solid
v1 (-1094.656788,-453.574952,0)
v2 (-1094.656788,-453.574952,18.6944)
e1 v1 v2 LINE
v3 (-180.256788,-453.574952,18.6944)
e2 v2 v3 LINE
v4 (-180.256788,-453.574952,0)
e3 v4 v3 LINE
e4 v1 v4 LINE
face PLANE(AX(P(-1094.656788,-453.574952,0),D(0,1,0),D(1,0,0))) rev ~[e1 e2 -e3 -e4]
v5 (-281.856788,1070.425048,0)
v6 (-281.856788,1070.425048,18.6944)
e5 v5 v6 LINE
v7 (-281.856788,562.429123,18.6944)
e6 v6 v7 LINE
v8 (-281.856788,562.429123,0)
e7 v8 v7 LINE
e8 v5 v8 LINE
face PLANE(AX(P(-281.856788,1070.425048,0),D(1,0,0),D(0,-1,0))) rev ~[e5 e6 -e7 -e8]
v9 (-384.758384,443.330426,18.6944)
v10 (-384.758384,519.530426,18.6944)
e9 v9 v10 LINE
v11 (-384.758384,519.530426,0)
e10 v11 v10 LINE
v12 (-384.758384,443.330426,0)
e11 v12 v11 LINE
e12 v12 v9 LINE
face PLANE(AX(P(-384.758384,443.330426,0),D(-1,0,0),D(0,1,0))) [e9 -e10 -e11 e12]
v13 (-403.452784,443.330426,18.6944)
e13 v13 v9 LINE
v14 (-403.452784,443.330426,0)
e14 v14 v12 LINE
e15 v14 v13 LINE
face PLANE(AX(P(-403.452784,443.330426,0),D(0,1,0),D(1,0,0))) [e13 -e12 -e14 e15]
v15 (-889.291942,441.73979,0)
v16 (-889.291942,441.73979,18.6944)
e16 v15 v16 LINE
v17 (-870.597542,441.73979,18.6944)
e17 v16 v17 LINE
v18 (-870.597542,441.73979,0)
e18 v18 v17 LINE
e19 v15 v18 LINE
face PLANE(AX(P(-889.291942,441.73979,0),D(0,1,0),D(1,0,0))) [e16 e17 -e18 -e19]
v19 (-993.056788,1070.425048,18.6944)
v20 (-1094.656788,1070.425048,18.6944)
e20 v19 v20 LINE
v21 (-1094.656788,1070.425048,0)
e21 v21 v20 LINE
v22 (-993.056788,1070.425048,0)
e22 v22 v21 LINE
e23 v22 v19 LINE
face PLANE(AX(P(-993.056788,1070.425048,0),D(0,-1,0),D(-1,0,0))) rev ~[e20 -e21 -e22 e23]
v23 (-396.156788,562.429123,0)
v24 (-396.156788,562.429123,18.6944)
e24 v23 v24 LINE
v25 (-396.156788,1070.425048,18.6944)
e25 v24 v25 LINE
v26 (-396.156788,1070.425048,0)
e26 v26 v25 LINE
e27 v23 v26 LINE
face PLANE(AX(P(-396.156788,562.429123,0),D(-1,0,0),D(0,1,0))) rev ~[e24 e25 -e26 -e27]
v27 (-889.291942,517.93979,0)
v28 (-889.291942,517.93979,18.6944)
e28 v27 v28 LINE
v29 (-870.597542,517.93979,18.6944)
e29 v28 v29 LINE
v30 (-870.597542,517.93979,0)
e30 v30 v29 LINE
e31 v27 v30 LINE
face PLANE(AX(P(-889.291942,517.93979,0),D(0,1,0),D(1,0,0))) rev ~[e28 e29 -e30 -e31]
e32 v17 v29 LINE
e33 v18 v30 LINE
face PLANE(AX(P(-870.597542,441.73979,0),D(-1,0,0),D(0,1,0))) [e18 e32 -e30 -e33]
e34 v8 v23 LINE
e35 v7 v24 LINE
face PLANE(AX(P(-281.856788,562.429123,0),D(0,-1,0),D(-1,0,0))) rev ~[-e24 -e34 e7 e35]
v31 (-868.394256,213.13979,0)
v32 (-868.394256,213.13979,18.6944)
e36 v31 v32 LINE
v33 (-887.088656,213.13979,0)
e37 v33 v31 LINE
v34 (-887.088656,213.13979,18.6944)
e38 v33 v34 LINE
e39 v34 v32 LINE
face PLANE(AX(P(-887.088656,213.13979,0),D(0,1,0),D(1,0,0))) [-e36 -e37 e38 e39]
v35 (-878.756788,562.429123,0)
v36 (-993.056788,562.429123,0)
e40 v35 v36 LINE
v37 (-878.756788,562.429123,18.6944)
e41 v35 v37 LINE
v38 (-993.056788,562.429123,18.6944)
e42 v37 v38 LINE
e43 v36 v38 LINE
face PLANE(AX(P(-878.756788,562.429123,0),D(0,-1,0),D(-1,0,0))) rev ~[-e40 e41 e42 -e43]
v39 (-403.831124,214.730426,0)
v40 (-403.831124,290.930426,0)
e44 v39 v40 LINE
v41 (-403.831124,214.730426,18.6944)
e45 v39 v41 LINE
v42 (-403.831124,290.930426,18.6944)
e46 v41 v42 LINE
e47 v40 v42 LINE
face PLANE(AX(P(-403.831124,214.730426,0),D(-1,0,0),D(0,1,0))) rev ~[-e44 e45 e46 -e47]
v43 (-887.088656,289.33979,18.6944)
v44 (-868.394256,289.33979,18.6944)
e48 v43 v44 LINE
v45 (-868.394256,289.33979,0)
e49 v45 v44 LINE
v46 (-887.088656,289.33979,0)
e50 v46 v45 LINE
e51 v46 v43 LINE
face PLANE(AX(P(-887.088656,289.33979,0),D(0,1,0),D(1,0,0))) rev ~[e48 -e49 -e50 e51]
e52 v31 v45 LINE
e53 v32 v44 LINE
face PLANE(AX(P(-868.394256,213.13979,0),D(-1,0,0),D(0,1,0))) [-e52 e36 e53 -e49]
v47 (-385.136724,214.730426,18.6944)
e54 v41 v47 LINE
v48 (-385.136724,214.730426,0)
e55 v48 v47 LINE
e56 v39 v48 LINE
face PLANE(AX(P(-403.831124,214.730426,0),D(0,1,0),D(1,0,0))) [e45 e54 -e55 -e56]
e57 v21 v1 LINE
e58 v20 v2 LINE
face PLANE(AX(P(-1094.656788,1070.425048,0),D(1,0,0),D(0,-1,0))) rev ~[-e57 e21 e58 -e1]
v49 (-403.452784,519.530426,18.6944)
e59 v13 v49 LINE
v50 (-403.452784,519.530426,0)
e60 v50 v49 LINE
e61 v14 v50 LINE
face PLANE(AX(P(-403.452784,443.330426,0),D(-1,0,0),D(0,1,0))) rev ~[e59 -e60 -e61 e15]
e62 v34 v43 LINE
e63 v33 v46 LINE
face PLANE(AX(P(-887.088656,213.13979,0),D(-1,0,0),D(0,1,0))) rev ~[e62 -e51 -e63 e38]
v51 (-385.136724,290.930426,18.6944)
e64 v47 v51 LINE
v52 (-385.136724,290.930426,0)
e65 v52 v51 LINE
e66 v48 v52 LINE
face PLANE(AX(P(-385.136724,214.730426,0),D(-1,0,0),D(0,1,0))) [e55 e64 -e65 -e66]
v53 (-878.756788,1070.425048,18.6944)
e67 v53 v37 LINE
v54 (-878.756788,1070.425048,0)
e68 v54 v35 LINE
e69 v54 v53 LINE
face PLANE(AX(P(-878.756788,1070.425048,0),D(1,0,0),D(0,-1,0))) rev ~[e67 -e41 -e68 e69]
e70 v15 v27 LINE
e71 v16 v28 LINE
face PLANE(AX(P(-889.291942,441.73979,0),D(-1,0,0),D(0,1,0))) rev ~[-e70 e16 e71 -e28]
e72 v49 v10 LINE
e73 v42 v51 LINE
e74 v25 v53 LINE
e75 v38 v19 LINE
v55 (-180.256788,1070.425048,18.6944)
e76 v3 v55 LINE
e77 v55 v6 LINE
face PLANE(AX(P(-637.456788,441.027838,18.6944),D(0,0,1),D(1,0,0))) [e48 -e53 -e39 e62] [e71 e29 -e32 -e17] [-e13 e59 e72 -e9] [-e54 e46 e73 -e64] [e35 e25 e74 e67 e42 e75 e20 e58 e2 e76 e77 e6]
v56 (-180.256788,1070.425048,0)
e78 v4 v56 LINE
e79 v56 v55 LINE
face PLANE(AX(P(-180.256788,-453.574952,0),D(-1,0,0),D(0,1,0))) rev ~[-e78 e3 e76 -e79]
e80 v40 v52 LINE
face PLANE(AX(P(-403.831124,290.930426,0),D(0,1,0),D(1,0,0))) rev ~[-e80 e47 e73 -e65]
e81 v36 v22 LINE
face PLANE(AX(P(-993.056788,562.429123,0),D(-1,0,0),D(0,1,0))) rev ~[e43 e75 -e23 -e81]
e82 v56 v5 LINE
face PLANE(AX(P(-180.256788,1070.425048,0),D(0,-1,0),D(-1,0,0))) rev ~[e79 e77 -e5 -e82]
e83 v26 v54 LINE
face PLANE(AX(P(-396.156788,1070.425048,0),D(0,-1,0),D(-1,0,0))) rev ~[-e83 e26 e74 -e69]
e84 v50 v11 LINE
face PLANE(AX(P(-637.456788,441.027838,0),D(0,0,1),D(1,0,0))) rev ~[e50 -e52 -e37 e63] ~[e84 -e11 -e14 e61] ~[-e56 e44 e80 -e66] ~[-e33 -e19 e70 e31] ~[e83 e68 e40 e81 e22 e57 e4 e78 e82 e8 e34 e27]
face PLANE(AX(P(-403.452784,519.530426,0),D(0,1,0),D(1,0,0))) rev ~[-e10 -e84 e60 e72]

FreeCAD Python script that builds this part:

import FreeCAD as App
import Part
import Sketcher
from FreeCAD import Vector
Q = App.Units.Quantity


def add_polygon(sketch, points):
    """Adds a closed chain of lines whose ends are joined by coincident constraints."""
    first, n = sketch.GeometryCount, len(points)
    for a, b in zip(points, points[1:] + points[:1]):
        sketch.addGeometry(Part.LineSegment(App.Vector(*a, 0), App.Vector(*b, 0)), False)
    for i in range(n):
        sketch.addConstraint(Sketcher.Constraint("Coincident", first + i, 2, first + (i + 1) % n, 1))

doc = App.newDocument("Part")
body = doc.addObject("PartDesign::Body", "Body")

# Sketch on XY plane
sketch1 = body.newObject("Sketcher::SketchObject", "Sketch")
sketch1.AttachmentSupport = (doc.getObject("XY_Plane"), [""])
sketch1.MapMode = "FlatFace"
add_polygon(sketch1, [(-993.056788, 1070.425048), (-1094.656788, 1070.425048), (-1094.656788, -453.574952), (-180.256788, -453.574952), (-180.256788, 1070.425048), (-281.856788, 1070.425048), (-281.856788, 562.429123), (-396.156788, 562.429123), (-396.156788, 1070.425048), (-878.756788, 1070.425048), (-878.756788, 562.429123), (-993.056788, 562.429123)])  # lines 0-11
add_polygon(sketch1, [(-868.394256, 213.13979), (-887.088656, 213.13979), (-887.088656, 289.33979), (-868.394256, 289.33979)])  # lines 12-15
add_polygon(sketch1, [(-385.136724, 214.730426), (-403.831124, 214.730426), (-403.831124, 290.930426), (-385.136724, 290.930426)])  # lines 16-19
add_polygon(sketch1, [(-870.597542, 441.73979), (-889.291942, 441.73979), (-889.291942, 517.93979), (-870.597542, 517.93979)])  # lines 20-23
add_polygon(sketch1, [(-384.758384, 443.330426), (-403.452784, 443.330426), (-403.452784, 519.530426), (-384.758384, 519.530426)])  # lines 24-27
sketch1.addConstraint(Sketcher.Constraint("Horizontal", 0))
sketch1.addConstraint(Sketcher.Constraint("Vertical", 1))
sketch1.addConstraint(Sketcher.Constraint("Horizontal", 2))
sketch1.addConstraint(Sketcher.Constraint("Vertical", 3))
sketch1.addConstraint(Sketcher.Constraint("Horizontal", 4))
sketch1.addConstraint(Sketcher.Constraint("Vertical", 5))
sketch1.addConstraint(Sketcher.Constraint("Horizontal", 6))
sketch1.addConstraint(Sketcher.Constraint("Vertical", 7))
sketch1.addConstraint(Sketcher.Constraint("Horizontal", 8))
sketch1.addConstraint(Sketcher.Constraint("Vertical", 9))
sketch1.addConstraint(Sketcher.Constraint("Horizontal", 10))
sketch1.addConstraint(Sketcher.Constraint("Vertical", 11))
sketch1.addConstraint(Sketcher.Constraint("Horizontal", 12))
sketch1.addConstraint(Sketcher.Constraint("Vertical", 13))
sketch1.addConstraint(Sketcher.Constraint("Horizontal", 14))
sketch1.addConstraint(Sketcher.Constraint("Vertical", 15))
sketch1.addConstraint(Sketcher.Constraint("Horizontal", 16))
sketch1.addConstraint(Sketcher.Constraint("Vertical", 17))
sketch1.addConstraint(Sketcher.Constraint("Horizontal", 18))
sketch1.addConstraint(Sketcher.Constraint("Vertical", 19))
sketch1.addConstraint(Sketcher.Constraint("Horizontal", 20))
sketch1.addConstraint(Sketcher.Constraint("Vertical", 21))
sketch1.addConstraint(Sketcher.Constraint("Horizontal", 22))
sketch1.addConstraint(Sketcher.Constraint("Vertical", 23))
sketch1.addConstraint(Sketcher.Constraint("Horizontal", 24))
sketch1.addConstraint(Sketcher.Constraint("Vertical", 25))
sketch1.addConstraint(Sketcher.Constraint("Horizontal", 26))
sketch1.addConstraint(Sketcher.Constraint("Vertical", 27))
sketch1.addConstraint(Sketcher.Constraint("Horizontal", 0, 2, 3, 2))
sketch1.addConstraint(Sketcher.Constraint("Horizontal", 4, 2, 7, 2))
sketch1.addConstraint(Sketcher.Constraint("Horizontal", 6, 2, 9, 2))
sketch1.addConstraint(Sketcher.Constraint("Equal", 0, 4))
sketch1.addConstraint(Sketcher.Constraint("Equal", 6, 10))
sketch1.addConstraint(Sketcher.Constraint("Equal", 14, 16))
sketch1.addConstraint(Sketcher.Constraint("Equal", 18, 20))
sketch1.addConstraint(Sketcher.Constraint("Equal", 22, 24))
sketch1.addConstraint(Sketcher.Constraint("Equal", 15, 17))
sketch1.addConstraint(Sketcher.Constraint("Equal", 19, 21))
sketch1.addConstraint(Sketcher.Constraint("Equal", 23, 25))
sketch1.addConstraint(Sketcher.Constraint("DistanceX", 0, 2, 0, 1, Q("4 in")))
sketch1.addConstraint(Sketcher.Constraint("DistanceX", 2, 1, 2, 2, Q("36 in")))
sketch1.addConstraint(Sketcher.Constraint("DistanceX", 8, 2, 8, 1, Q("19 in")))
sketch1.addConstraint(Sketcher.Constraint("DistanceY", 1, 2, 1, 1, Q("60 in")))
sketch1.addConstraint(Sketcher.Constraint("DistanceY", 13, 1, 13, 2, Q("3 in")))
sketch1.addConstraint(Sketcher.Constraint("DistanceY", 13, 2, 20, 2, Q("6 in")))
sketch1.addConstraint(Sketcher.Constraint("DistanceY", 17, 2, 24, 2, Q("6 in")))
sketch1.addConstraint(Sketcher.Constraint("DistanceX", 12, 2, 12, 1, Q("0.736 in")))
sketch1.addConstraint(Sketcher.Constraint("DistanceY", 5, 2, 5, 1, Q("507.995925 mm")))
sketch1.addConstraint(Sketcher.Constraint("DistanceX", 0, 2, -1, 1, Q("1094.656788 mm")))
sketch1.addConstraint(Sketcher.Constraint("DistanceY", -1, 1, 0, 2, Q("1070.425048 mm")))
sketch1.addConstraint(Sketcher.Constraint("DistanceY", -1, 1, 12, 2, Q("213.13979 mm")))
sketch1.addConstraint(Sketcher.Constraint("DistanceX", 20, 2, -1, 1, Q("889.291942 mm")))
sketch1.addConstraint(Sketcher.Constraint("DistanceX", 10, 2, 12, 2, Q("105.968132 mm")))
sketch1.addConstraint(Sketcher.Constraint("DistanceX", 17, 2, 24, 2, Q("0.37834 mm")))
sketch1.addConstraint(Sketcher.Constraint("DistanceX", 16, 2, -1, 1, Q("403.831124 mm")))
sketch1.addConstraint(Sketcher.Constraint("DistanceY", -1, 1, 16, 2, Q("214.730426 mm")))
pad1 = body.newObject("PartDesign::Pad", "Pad")
pad1.Profile = sketch1
pad1.Length = Q("0.736 in")

doc.recompute()
